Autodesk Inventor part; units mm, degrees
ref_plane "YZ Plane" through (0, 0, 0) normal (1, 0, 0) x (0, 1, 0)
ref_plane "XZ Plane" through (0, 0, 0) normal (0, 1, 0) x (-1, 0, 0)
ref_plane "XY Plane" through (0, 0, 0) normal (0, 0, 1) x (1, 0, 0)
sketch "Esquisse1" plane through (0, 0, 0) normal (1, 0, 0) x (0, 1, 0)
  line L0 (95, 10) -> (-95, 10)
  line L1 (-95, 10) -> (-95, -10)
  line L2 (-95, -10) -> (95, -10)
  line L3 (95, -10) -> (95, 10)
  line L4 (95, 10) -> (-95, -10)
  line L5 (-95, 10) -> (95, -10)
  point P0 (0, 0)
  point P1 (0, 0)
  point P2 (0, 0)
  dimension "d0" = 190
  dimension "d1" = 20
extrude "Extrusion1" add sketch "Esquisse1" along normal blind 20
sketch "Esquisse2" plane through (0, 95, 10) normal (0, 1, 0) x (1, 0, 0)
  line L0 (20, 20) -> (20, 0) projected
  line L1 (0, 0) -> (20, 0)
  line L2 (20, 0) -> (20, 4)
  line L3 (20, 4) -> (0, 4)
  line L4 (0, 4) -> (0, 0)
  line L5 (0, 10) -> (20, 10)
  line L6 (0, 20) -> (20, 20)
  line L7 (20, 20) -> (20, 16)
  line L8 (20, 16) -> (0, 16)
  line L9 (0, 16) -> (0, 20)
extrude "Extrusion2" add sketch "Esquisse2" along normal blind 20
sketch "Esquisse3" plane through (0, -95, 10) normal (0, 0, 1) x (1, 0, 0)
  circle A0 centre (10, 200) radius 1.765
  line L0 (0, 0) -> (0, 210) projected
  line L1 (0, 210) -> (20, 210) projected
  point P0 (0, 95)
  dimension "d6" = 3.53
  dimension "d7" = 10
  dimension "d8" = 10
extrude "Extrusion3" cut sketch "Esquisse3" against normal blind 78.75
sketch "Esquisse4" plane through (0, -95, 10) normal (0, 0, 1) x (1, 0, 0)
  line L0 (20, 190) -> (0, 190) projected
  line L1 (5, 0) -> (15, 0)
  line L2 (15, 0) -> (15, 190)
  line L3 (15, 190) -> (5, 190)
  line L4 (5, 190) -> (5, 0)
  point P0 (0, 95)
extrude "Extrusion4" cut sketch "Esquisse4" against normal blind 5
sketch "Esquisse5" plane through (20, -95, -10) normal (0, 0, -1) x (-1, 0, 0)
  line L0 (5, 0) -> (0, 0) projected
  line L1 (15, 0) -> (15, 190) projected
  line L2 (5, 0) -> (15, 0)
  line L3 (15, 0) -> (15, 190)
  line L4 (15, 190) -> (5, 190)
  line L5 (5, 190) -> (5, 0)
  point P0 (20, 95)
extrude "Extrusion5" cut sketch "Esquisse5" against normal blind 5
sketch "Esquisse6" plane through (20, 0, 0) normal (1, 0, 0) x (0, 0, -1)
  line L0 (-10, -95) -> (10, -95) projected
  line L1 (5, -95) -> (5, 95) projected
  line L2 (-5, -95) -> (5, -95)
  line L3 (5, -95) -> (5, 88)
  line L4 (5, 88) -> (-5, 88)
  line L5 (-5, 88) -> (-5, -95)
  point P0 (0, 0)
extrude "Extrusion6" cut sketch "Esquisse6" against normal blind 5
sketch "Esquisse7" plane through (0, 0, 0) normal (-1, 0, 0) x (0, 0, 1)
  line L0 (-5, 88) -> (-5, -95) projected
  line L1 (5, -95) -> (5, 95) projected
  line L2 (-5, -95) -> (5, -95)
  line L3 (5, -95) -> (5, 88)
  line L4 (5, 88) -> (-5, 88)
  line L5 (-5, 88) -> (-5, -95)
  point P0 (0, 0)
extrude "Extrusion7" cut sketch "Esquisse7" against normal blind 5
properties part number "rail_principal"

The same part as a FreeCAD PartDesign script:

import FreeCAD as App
import Part
import Sketcher
from FreeCAD import Vector


def add_polygon(sketch, points):
    """Adds a closed chain of lines whose ends are joined by coincident constraints."""
    first, n = sketch.GeometryCount, len(points)
    for a, b in zip(points, points[1:] + points[:1]):
        sketch.addGeometry(Part.LineSegment(App.Vector(*a, 0), App.Vector(*b, 0)), False)
    for i in range(n):
        sketch.addConstraint(Sketcher.Constraint("Coincident", first + i, 2, first + (i + 1) % n, 1))

doc = App.newDocument("Part")
params = doc.addObject("Spreadsheet::Sheet", "Params")
for row, (alias, value) in enumerate([
    ("sketch1_width", "190 mm"),
    ("sketch1_height", "20 mm"),
    ("pad1_length", "20 mm"),
    ("sketch2_width", "20 mm"),
    ("sketch2_height", "4 mm"),
    ("pad2_length", "20 mm"),
    ("sketch3_diameter", "3.53 mm"),
    ("pocket1_length", "78.75 mm"),
    ("sketch4_width", "10 mm"),
    ("sketch4_height", "190 mm"),
    ("pocket2_length", "5 mm"),
    ("sketch5_width", "10 mm"),
    ("sketch5_height", "190 mm"),
    ("pocket3_length", "5 mm"),
    ("sketch6_width", "183 mm"),
    ("sketch6_height", "10 mm"),
    ("pocket4_length", "5 mm"),
    ("sketch7_width", "183 mm"),
    ("sketch7_height", "10 mm"),
    ("pocket5_length", "5 mm"),
], start=1):
    params.set(f"A{row}", alias)
    params.set(f"B{row}", "=" + value)
    params.setAlias(f"B{row}", alias)

body = doc.addObject("PartDesign::Body", "Body")

# Sketch on YZ plane
sketch1 = body.newObject("Sketcher::SketchObject", "Sketch")
sketch1.AttachmentSupport = (doc.getObject("YZ_Plane"), [""])
sketch1.MapMode = "FlatFace"
add_polygon(sketch1, [(95, 10), (-95, 10), (-95, -10), (95, -10)])  # lines 0-3
sketch1.addConstraint([
    Sketcher.Constraint("Horizontal", 0),
    Sketcher.Constraint("Vertical", 1),
    Sketcher.Constraint("Horizontal", 2),
    Sketcher.Constraint("Vertical", 3),
    Sketcher.Constraint("Symmetric", 0, 2, 2, 2, -1, 1),
    Sketcher.Constraint("DistanceX", 0, 2, 0, 1, 190.0),
    Sketcher.Constraint("DistanceY", 1, 2, 1, 1, 20.0),
])
sketch1.setExpression("Constraints[9]", "Params.sketch1_width")
sketch1.setExpression("Constraints[10]", "Params.sketch1_height")
pad1 = body.newObject("PartDesign::Pad", "Pad")
pad1.Profile = sketch1
pad1.setExpression("Length", "Params.pad1_length")

# Sketch on XZ plane
sketch2 = body.newObject("Sketcher::SketchObject", "Sketch001")
sketch2.AttachmentSupport = (doc.getObject("XZ_Plane"), [""])
sketch2.MapMode = "FlatFace"
sketch2.AttachmentOffset = App.Placement(Vector(0, 0, -95), App.Rotation())
add_polygon(sketch2, [(20, 10), (20, 6), (0, 6), (0, 10)])  # lines 0-3
add_polygon(sketch2, [(20, -6), (20, -10), (0, -10), (0, -6)])  # lines 4-7
sketch2.addConstraint([
    Sketcher.Constraint("Vertical", 0),
    Sketcher.Constraint("Horizontal", 1),
    Sketcher.Constraint("Vertical", 2),
    Sketcher.Constraint("Horizontal", 3),
    Sketcher.Constraint("Vertical", 4),
    Sketcher.Constraint("Horizontal", 5),
    Sketcher.Constraint("Vertical", 6),
    Sketcher.Constraint("Horizontal", 7),
    Sketcher.Constraint("Symmetric", 2, 2, 5, 2, -1, 1),
    Sketcher.Constraint("Symmetric", 1, 2, 6, 2, -1),
    Sketcher.Constraint("Vertical", 3, 2, 4, 2),
    Sketcher.Constraint("DistanceX", 1, 2, 1, 1, 20.0),
    Sketcher.Constraint("DistanceY", 0, 2, 0, 1, 4.0),
    Sketcher.Constraint("DistanceY", -1, 1, 0, 2, 6.0),
])
sketch2.setExpression("Constraints[19]", "Params.sketch2_width")
sketch2.setExpression("Constraints[20]", "Params.sketch2_height")
pad2 = body.newObject("PartDesign::Pad", "Pad001")
pad2.Profile = sketch2
pad2.setExpression("Length", "Params.pad2_length")
pad2.Reversed = True

# Sketch on XY plane
sketch3 = body.newObject("Sketcher::SketchObject", "Sketch002")
sketch3.AttachmentSupport = (doc.getObject("XY_Plane"), [""])
sketch3.MapMode = "FlatFace"
sketch3.AttachmentOffset = App.Placement(Vector(0, 0, 10), App.Rotation())
sketch3.addGeometry(Part.Circle(Vector(10, 105, 0), Vector(0, 0, 1), 1.8), False)
sketch3.addConstraint([
    Sketcher.Constraint("Diameter", 0, 3.53),
    Sketcher.Constraint("DistanceX", -1, 1, 0, 3, 10.0),
    Sketcher.Constraint("DistanceY", -1, 1, 0, 3, 105.0),
])
sketch3.setExpression("Constraints[0]", "Params.sketch3_diameter")
pocket1 = body.newObject("PartDesign::Pocket", "Pocket")
pocket1.Profile = sketch3
pocket1.setExpression("Length", "Params.pocket1_length")

# Sketch on XY plane
sketch4 = body.newObject("Sketcher::SketchObject", "Sketch003")
sketch4.AttachmentSupport = (doc.getObject("XY_Plane"), [""])
sketch4.MapMode = "FlatFace"
sketch4.AttachmentOffset = App.Placement(Vector(0, 0, 10), App.Rotation())
add_polygon(sketch4, [(15, -95), (15, 95), (5, 95), (5, -95)])  # lines 0-3
sketch4.addConstraint([
    Sketcher.Constraint("Vertical", 0),
    Sketcher.Constraint("Horizontal", 1),
    Sketcher.Constraint("Vertical", 2),
    Sketcher.Constraint("Horizontal", 3),
    Sketcher.Constraint("DistanceX", 1, 2, 1, 1, 10.0),
    Sketcher.Constraint("DistanceY", 0, 1, 0, 2, 190.0),
    Sketcher.Constraint("DistanceX", -1, 1, 0, 2, 15.0),
    Sketcher.Constraint("DistanceY", -1, 1, 0, 2, 95.0),
])
sketch4.setExpression("Constraints[8]", "Params.sketch4_width")
sketch4.setExpression("Constraints[9]", "Params.sketch4_height")
pocket2 = body.newObject("PartDesign::Pocket", "Pocket001")
pocket2.Profile = sketch4
pocket2.setExpression("Length", "Params.pocket2_length")

# Sketch on XY plane
sketch5 = body.newObject("Sketcher::SketchObject", "Sketch004")
sketch5.AttachmentSupport = (doc.getObject("XY_Plane"), [""])
sketch5.MapMode = "FlatFace"
sketch5.AttachmentOffset = App.Placement(Vector(0, 0, -10), App.Rotation())
add_polygon(sketch5, [(15, -95), (5, -95), (5, 95), (15, 95)])  # lines 0-3
sketch5.addConstraint([
    Sketcher.Constraint("Horizontal", 0),
    Sketcher.Constraint("Vertical", 1),
    Sketcher.Constraint("Horizontal", 2),
    Sketcher.Constraint("Vertical", 3),
    Sketcher.Constraint("DistanceX", 0, 2, 0, 1, 10.0),
    Sketcher.Constraint("DistanceY", 1, 1, 1, 2, 190.0),
    Sketcher.Constraint("DistanceX", -1, 1, 0, 2, 5.0),
    Sketcher.Constraint("DistanceY", 0, 2, -1, 1, 95.0),
])
sketch5.setExpression("Constraints[8]", "Params.sketch5_width")
sketch5.setExpression("Constraints[9]", "Params.sketch5_height")
pocket3 = body.newObject("PartDesign::Pocket", "Pocket002")
pocket3.Profile = sketch5
pocket3.setExpression("Length", "Params.pocket3_length")
pocket3.Reversed = True

# Sketch on YZ plane
sketch6 = body.newObject("Sketcher::SketchObject", "Sketch005")
sketch6.AttachmentSupport = (doc.getObject("YZ_Plane"), [""])
sketch6.MapMode = "FlatFace"
sketch6.AttachmentOffset = App.Placement(Vector(0, 0, 20), App.Rotation())
add_polygon(sketch6, [(88, 5), (-95, 5), (-95, -5), (88, -5)])  # lines 0-3
sketch6.addConstraint([
    Sketcher.Constraint("Horizontal", 0),
    Sketcher.Constraint("Vertical", 1),
    Sketcher.Constraint("Horizontal", 2),
    Sketcher.Constraint("Vertical", 3),
    Sketcher.Constraint("DistanceX", 0, 2, 0, 1, 183.0),
    Sketcher.Constraint("DistanceY", 1, 2, 1, 1, 10.0),
    Sketcher.Constraint("DistanceX", 0, 2, -1, 1, 95.0),
    Sketcher.Constraint("DistanceY", -1, 1, 0, 2, 5.0),
])
sketch6.setExpression("Constraints[8]", "Params.sketch6_width")
sketch6.setExpression("Constraints[9]", "Params.sketch6_height")
pocket4 = body.newObject("PartDesign::Pocket", "Pocket003")
pocket4.Profile = sketch6
pocket4.setExpression("Length", "Params.pocket4_length")

# Sketch on YZ plane
sketch7 = body.newObject("Sketcher::SketchObject", "Sketch006")
sketch7.AttachmentSupport = (doc.getObject("YZ_Plane"), [""])
sketch7.MapMode = "FlatFace"
add_polygon(sketch7, [(88, 5), (88, -5), (-95, -5), (-95, 5)])  # lines 0-3
sketch7.addConstraint([
    Sketcher.Constraint("Vertical", 0),
    Sketcher.Constraint("Horizontal", 1),
    Sketcher.Constraint("Vertical", 2),
    Sketcher.Constraint("Horizontal", 3),
    Sketcher.Constraint("DistanceX", 1, 2, 1, 1, 183.0),
    Sketcher.Constraint("DistanceY", 0, 2, 0, 1, 10.0),
    Sketcher.Constraint("DistanceX", -1, 1, 0, 2, 88.0),
    Sketcher.Constraint("DistanceY", 0, 2, -1, 1, 5.0),
])
sketch7.setExpression("Constraints[8]", "Params.sketch7_width")
sketch7.setExpression("Constraints[9]", "Params.sketch7_height")
pocket5 = body.newObject("PartDesign::Pocket", "Pocket004")
pocket5.Profile = sketch7
pocket5.setExpression("Length", "Params.pocket5_length")
pocket5.Reversed = True

doc.recompute()
